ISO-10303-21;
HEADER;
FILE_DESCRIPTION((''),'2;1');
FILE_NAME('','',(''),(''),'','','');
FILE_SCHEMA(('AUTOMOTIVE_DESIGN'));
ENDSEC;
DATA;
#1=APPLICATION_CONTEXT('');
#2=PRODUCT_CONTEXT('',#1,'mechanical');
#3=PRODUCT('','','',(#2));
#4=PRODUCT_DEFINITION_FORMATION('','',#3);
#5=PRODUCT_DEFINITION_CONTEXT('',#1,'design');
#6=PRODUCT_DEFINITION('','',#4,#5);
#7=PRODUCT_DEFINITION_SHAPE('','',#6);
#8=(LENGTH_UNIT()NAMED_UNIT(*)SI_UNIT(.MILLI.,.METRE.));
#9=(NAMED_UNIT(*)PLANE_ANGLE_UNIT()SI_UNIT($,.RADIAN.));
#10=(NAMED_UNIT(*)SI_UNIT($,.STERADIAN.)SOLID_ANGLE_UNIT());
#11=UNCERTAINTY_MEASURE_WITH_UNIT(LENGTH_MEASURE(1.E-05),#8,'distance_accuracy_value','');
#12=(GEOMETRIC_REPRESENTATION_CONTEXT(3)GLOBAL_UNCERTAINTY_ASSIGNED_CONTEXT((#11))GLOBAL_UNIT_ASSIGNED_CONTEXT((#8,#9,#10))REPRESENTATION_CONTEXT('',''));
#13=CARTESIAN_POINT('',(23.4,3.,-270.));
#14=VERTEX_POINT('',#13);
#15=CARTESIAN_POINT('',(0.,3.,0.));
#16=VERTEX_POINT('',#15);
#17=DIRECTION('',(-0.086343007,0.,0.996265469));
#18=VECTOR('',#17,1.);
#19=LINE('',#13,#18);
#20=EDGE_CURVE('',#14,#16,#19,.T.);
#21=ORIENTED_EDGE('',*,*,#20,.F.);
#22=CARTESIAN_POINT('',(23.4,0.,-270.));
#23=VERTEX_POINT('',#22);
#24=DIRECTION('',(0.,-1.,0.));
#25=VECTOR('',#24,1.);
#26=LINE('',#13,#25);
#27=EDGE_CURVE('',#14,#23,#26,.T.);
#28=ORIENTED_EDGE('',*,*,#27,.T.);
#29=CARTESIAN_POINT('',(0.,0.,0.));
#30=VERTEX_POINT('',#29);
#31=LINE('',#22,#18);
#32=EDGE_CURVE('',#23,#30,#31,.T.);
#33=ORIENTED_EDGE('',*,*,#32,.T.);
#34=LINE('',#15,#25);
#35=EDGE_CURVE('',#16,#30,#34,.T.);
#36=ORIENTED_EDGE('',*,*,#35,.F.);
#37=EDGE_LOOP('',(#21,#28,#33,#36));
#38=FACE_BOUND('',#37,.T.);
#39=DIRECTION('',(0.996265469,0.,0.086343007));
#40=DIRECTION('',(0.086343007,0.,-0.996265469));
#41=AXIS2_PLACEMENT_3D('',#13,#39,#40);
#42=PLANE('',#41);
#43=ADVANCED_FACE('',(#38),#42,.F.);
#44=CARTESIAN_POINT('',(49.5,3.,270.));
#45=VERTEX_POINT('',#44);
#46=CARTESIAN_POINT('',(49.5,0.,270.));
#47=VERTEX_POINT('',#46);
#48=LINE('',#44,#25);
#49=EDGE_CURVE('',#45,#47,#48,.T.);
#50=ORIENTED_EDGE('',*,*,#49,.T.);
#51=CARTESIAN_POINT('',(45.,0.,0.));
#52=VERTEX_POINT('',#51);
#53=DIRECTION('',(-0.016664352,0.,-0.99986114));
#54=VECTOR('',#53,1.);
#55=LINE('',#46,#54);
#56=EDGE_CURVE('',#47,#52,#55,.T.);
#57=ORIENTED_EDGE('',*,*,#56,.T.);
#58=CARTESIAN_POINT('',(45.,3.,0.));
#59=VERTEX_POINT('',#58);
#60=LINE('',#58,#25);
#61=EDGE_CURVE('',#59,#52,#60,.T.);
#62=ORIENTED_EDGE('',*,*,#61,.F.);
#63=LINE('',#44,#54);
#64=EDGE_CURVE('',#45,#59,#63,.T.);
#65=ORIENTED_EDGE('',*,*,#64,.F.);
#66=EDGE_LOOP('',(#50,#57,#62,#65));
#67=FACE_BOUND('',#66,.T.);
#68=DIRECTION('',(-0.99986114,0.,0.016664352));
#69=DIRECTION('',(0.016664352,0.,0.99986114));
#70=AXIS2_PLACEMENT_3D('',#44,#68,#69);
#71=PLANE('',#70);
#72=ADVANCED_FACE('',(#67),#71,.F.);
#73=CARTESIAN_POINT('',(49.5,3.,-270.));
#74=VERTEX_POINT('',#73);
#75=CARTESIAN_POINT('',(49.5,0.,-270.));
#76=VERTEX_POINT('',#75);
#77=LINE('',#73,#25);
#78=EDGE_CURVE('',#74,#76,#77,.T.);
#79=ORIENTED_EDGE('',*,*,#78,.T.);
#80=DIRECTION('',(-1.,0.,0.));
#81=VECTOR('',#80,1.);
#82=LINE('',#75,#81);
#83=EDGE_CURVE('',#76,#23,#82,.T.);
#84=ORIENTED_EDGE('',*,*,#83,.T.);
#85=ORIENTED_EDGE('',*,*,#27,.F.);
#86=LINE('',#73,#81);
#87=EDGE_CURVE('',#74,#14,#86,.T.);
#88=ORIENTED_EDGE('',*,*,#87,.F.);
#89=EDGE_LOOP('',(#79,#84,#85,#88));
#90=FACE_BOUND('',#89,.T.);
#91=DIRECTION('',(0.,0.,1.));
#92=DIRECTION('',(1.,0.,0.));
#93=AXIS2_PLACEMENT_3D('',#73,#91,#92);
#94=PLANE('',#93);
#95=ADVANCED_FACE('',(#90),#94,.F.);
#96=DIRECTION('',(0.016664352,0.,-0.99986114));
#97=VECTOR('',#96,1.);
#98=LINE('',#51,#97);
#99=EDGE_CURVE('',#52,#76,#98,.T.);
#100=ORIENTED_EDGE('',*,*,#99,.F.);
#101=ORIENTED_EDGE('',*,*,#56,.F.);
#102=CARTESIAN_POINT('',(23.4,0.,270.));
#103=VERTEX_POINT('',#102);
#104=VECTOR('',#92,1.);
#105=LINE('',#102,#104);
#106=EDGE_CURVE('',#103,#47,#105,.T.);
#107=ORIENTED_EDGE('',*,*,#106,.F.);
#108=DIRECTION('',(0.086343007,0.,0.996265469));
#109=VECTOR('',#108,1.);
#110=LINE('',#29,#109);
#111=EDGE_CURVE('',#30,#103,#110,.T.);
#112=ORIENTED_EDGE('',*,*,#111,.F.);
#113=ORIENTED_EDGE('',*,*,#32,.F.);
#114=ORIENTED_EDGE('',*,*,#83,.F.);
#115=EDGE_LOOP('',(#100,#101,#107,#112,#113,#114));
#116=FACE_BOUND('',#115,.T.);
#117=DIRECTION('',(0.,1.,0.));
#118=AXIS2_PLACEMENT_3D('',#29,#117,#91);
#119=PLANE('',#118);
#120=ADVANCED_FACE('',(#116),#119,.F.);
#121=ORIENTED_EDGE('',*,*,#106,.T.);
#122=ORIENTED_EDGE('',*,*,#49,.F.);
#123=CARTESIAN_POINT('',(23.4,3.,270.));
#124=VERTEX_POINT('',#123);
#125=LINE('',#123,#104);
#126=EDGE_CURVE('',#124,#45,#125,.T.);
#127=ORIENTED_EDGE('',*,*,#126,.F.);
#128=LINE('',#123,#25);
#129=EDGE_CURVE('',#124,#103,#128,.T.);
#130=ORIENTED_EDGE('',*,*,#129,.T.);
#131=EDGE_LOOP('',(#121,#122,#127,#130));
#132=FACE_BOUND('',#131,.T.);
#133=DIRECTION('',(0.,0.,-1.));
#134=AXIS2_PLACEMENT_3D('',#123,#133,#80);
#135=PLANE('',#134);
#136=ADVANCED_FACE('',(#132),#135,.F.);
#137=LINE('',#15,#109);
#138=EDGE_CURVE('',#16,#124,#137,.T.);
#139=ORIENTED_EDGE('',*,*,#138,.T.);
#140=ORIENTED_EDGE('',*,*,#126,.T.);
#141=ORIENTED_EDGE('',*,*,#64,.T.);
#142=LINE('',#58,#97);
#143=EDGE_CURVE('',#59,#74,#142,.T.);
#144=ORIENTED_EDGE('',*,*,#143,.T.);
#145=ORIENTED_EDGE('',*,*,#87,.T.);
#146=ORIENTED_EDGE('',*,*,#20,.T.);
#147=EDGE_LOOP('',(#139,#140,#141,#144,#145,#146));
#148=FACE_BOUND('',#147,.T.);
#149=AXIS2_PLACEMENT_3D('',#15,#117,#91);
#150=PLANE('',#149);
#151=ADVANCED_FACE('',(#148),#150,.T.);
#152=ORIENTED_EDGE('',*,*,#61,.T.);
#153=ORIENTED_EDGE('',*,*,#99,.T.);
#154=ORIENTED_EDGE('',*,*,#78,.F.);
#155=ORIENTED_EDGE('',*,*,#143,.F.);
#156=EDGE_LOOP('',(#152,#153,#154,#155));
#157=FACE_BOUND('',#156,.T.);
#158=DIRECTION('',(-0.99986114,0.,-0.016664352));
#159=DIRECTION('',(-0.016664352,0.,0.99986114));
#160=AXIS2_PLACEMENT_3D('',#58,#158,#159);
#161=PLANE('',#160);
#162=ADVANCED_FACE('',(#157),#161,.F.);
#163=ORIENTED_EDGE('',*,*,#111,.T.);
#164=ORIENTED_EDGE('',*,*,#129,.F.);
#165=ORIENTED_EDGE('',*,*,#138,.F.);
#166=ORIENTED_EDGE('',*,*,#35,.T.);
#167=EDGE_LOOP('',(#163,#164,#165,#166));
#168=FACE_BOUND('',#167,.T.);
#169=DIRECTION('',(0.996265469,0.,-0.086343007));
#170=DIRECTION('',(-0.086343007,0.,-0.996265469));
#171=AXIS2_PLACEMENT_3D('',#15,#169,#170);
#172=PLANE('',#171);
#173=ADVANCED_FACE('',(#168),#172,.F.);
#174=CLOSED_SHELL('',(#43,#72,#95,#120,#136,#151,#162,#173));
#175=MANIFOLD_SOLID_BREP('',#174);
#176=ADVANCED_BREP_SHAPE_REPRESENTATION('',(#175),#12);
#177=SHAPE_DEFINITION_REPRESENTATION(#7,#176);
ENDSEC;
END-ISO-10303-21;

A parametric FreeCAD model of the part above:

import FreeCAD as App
import Part
import Sketcher
from FreeCAD import Vector

doc = App.newDocument("Part")
body = doc.addObject("PartDesign::Body", "Body")

sketch1 = body.newObject("Sketcher::SketchObject", "Sketch")
sketch1.AttachmentSupport = (doc.getObject("XZ_Plane"), [""])
sketch1.MapMode = "FlatFace"
sketch1.addGeometry([
    Part.LineSegment(Vector(50, -270, 0), Vector(23, -270, 0)),
    Part.LineSegment(Vector(23, -270, 0), Vector(0, 0, 0)),
    Part.LineSegment(Vector(0, 0, 0), Vector(23, 270, 0)),
    Part.LineSegment(Vector(23, 270, 0), Vector(50, 270, 0)),
    Part.LineSegment(Vector(50, 270, 0), Vector(45, 0, 0)),
    Part.LineSegment(Vector(45, 0, 0), Vector(50, -270, 0)),
], False)
sketch1.addConstraint([
    Sketcher.Constraint("Coincident", 0, 2, 1, 1),
    Sketcher.Constraint("Coincident", 1, 2, 2, 1),
    Sketcher.Constraint("Coincident", 2, 2, 3, 1),
    Sketcher.Constraint("Coincident", 3, 2, 4, 1),
    Sketcher.Constraint("Coincident", 4, 2, 5, 1),
    Sketcher.Constraint("Coincident", 5, 2, 0, 1),
    Sketcher.Constraint("Horizontal", 0),
    Sketcher.Constraint("Horizontal", 3),
    Sketcher.Constraint("Coincident", 1, 2, -1, 1),
    Sketcher.Constraint("Symmetric", 0, 2, 2, 2, -1),
    Sketcher.Constraint("PointOnObject", 4, 2, -1),
    Sketcher.Constraint("Vertical", 3, 2, 5, 2),
    Sketcher.Constraint("DistanceX", 0, 2, 0, 1, 26.1),
    Sketcher.Constraint("DistanceY", 0, 2, -1, 1, 270.0),
    Sketcher.Constraint("DistanceX", -1, 1, 4, 2, 45.0),
    Sketcher.Constraint("DistanceX", -1, 1, 0, 2, 23.4),
])
pad1 = body.newObject("PartDesign::Pad", "Pad")
pad1.Profile = sketch1
pad1.Length = 3
pad1.Reversed = True

doc.recompute()
